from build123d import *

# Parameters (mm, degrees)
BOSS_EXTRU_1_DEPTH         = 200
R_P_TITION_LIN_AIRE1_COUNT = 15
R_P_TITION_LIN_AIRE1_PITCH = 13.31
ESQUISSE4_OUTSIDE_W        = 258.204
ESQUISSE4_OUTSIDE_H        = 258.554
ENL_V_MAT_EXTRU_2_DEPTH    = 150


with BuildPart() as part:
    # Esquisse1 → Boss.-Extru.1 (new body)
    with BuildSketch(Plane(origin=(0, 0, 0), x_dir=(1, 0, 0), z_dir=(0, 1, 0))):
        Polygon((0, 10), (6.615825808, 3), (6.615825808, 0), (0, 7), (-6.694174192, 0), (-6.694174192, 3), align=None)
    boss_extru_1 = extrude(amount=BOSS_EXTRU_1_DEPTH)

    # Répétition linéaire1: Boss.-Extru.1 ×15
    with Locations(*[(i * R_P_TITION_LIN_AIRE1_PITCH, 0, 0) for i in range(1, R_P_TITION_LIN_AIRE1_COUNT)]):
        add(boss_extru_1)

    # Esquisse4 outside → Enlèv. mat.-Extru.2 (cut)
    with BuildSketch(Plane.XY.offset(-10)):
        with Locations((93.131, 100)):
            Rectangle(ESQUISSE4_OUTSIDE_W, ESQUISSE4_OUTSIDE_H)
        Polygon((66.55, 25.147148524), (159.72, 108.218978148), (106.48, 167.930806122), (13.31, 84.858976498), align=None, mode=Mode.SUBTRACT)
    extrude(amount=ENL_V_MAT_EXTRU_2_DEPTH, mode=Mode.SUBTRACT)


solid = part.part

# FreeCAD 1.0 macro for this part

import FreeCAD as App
import Part
import Sketcher
from FreeCAD import Vector
Q = App.Units.Quantity

doc = App.newDocument("Part")
body = doc.addObject("PartDesign::Body", "Body")

# Sketch on XZ plane
sketch1 = body.newObject("Sketcher::SketchObject", "Sketch")
sketch1.AttachmentSupport = (doc.getObject("XZ_Plane"), [""])
sketch1.MapMode = "FlatFace"
sketch1.addGeometry([
    Part.LineSegment(Vector(6.6, -3, 0), Vector(0, -10, 0)),  # 0
    Part.LineSegment(Vector(0, -10, 0), Vector(-6.7, -3, 0)),  # 1
    Part.LineSegment(Vector(-6.7, -3, 0), Vector(-6.7, 0, 0)),  # 2
    Part.LineSegment(Vector(-6.7, 0, 0), Vector(0, -7, 0)),  # 3
    Part.LineSegment(Vector(0, -7, 0), Vector(6.6, 0, 0)),  # 4
    Part.LineSegment(Vector(6.6, 0, 0), Vector(6.6, -3, 0)),  # 5
], False)
sketch1.addConstraint([
    Sketcher.Constraint("Coincident", 0, 2, 1, 1),
    Sketcher.Constraint("Coincident", 1, 2, 2, 1),
    Sketcher.Constraint("Coincident", 2, 2, 3, 1),
    Sketcher.Constraint("Coincident", 3, 2, 4, 1),
    Sketcher.Constraint("Coincident", 4, 2, 5, 1),
    Sketcher.Constraint("Coincident", 5, 2, 0, 1),
    Sketcher.Constraint("Vertical", 2),
    Sketcher.Constraint("Vertical", 5),
    Sketcher.Constraint("PointOnObject", 0, 2, -2),
    Sketcher.Constraint("PointOnObject", 2, 2, -1),
    Sketcher.Constraint("PointOnObject", 3, 2, -2),
    Sketcher.Constraint("PointOnObject", 4, 2, -1),
    Sketcher.Constraint("Parallel", 1, 3),
    Sketcher.Constraint("Parallel", 0, 4),
    Sketcher.Constraint("DistanceY", 2, 1, 2, 2, Q("3 mm")),
    Sketcher.Constraint("DistanceY", 0, 2, -1, 1, Q("10 mm")),
    Sketcher.Constraint("DistanceX", 2, 2, 4, 2, Q("13.31 mm")),
    Sketcher.Constraint("Distance", 0, Q("9.631674 mm")),
])
pad1 = body.newObject("PartDesign::Pad", "Pad")
pad1.Profile = sketch1
pad1.Length = 200
pad1.Reversed = True
doc.recompute()

linearpattern = body.newObject("PartDesign::LinearPattern", "LinearPattern")
linearpattern.Originals = [pad1]
linearpattern.Direction = (doc.getObject("X_Axis"), [""])
linearpattern.Mode = "offset"
linearpattern.Offset = 13.31
linearpattern.Occurrences = 15
body.Tip = linearpattern

# Sketch on XY plane
sketch2 = body.newObject("Sketcher::SketchObject", "Sketch001")
sketch2.AttachmentSupport = (doc.getObject("XY_Plane"), [""])
sketch2.MapMode = "FlatFace"
sketch2.AttachmentOffset = App.Placement(Vector(0, 0, -10), App.Rotation())
sketch2.addGeometry([
    Part.LineSegment(Vector(-36, 229, 0), Vector(-36, -29, 0)),  # 0
    Part.LineSegment(Vector(-36, -29, 0), Vector(222, -29, 0)),  # 1
    Part.LineSegment(Vector(222, -29, 0), Vector(222, 229, 0)),  # 2
    Part.LineSegment(Vector(222, 229, 0), Vector(-36, 229, 0)),  # 3
    Part.LineSegment(Vector(160, 108, 0), Vector(67, 25, 0)),  # 4
    Part.LineSegment(Vector(67, 25, 0), Vector(13, 85, 0)),  # 5
    Part.LineSegment(Vector(13, 85, 0), Vector(106, 168, 0)),  # 6
    Part.LineSegment(Vector(106, 168, 0), Vector(160, 108, 0)),  # 7
], False)
sketch2.addConstraint([
    Sketcher.Constraint("Coincident", 0, 2, 1, 1),
    Sketcher.Constraint("Coincident", 1, 2, 2, 1),
    Sketcher.Constraint("Coincident", 2, 2, 3, 1),
    Sketcher.Constraint("Coincident", 3, 2, 0, 1),
    Sketcher.Constraint("Coincident", 4, 2, 5, 1),
    Sketcher.Constraint("Coincident", 5, 2, 6, 1),
    Sketcher.Constraint("Coincident", 6, 2, 7, 1),
    Sketcher.Constraint("Coincident", 7, 2, 4, 1),
    Sketcher.Constraint("Vertical", 0),
    Sketcher.Constraint("Horizontal", 1),
    Sketcher.Constraint("Vertical", 2),
    Sketcher.Constraint("Horizontal", 3),
    Sketcher.Constraint("Perpendicular", 4, 5),
    Sketcher.Constraint("Perpendicular", 5, 6),
    Sketcher.Constraint("Perpendicular", 6, 7),
    Sketcher.Constraint("Distance", 5, Q("80 mm")),
    Sketcher.Constraint("DistanceX", 1, 1, 1, 2, Q("258.204 mm")),
    Sketcher.Constraint("DistanceY", 0, 2, 0, 1, Q("258.554 mm")),
    Sketcher.Constraint("DistanceX", -1, 1, 4, 2, Q("66.55 mm")),
    Sketcher.Constraint("DistanceX", -1, 1, 5, 2, Q("13.31 mm")),
    Sketcher.Constraint("DistanceX", -1, 1, 6, 2, Q("106.48 mm")),
    Sketcher.Constraint("DistanceX", 0, 2, -1, 1, Q("35.971 mm")),
    Sketcher.Constraint("DistanceY", 0, 2, -1, 1, Q("29.277 mm")),
    Sketcher.Constraint("DistanceY", -1, 1, 4, 2, Q("25.147149 mm")),
])
pocket1 = body.newObject("PartDesign::Pocket", "Pocket")
pocket1.Profile = sketch2
pocket1.Length = 150
pocket1.Reversed = True

doc.recompute()
